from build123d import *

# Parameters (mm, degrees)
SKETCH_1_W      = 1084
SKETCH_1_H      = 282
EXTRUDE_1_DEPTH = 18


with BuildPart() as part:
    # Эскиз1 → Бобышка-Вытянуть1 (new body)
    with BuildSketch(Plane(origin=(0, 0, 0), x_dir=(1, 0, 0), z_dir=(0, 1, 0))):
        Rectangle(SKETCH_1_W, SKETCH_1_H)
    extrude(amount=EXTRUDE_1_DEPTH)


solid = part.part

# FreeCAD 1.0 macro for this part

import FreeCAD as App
import Part
import Sketcher
from FreeCAD import Vector

doc = App.newDocument("Part")
body = doc.addObject("PartDesign::Body", "Body")

sketch1 = body.newObject("Sketcher::SketchObject", "Sketch")
sketch1.AttachmentSupport = (doc.getObject("XZ_Plane"), [""])
sketch1.MapMode = "FlatFace"
sketch1.addGeometry(Part.LineSegment(Vector(-542, -141, 0), Vector(-542, 141, 0)), False)
sketch1.addGeometry(Part.LineSegment(Vector(-542, 141, 0), Vector(542, 141, 0)), False)
sketch1.addGeometry(Part.LineSegment(Vector(542, 141, 0), Vector(542, -141, 0)), False)
sketch1.addGeometry(Part.LineSegment(Vector(542, -141, 0), Vector(-542, -141, 0)), False)
sketch1.addConstraint(Sketcher.Constraint("Coincident", 0, 2, 1, 1))
sketch1.addConstraint(Sketcher.Constraint("Coincident", 1, 2, 2, 1))
sketch1.addConstraint(Sketcher.Constraint("Coincident", 2, 2, 3, 1))
sketch1.addConstraint(Sketcher.Constraint("Coincident", 3, 2, 0, 1))
sketch1.addConstraint(Sketcher.Constraint("Vertical", 0))
sketch1.addConstraint(Sketcher.Constraint("Horizontal", 1))
sketch1.addConstraint(Sketcher.Constraint("Vertical", 2))
sketch1.addConstraint(Sketcher.Constraint("Horizontal", 3))
sketch1.addConstraint(Sketcher.Constraint("Symmetric", 0, 2, 2, 2, -1, 1))
sketch1.addConstraint(Sketcher.Constraint("DistanceX", 1, 1, 1, 2, 1084.0))
sketch1.addConstraint(Sketcher.Constraint("DistanceY", 0, 1, 0, 2, 282.0))
pad1 = body.newObject("PartDesign::Pad", "Pad")
pad1.Profile = sketch1
pad1.Length = 18
pad1.Reversed = True

doc.recompute()
